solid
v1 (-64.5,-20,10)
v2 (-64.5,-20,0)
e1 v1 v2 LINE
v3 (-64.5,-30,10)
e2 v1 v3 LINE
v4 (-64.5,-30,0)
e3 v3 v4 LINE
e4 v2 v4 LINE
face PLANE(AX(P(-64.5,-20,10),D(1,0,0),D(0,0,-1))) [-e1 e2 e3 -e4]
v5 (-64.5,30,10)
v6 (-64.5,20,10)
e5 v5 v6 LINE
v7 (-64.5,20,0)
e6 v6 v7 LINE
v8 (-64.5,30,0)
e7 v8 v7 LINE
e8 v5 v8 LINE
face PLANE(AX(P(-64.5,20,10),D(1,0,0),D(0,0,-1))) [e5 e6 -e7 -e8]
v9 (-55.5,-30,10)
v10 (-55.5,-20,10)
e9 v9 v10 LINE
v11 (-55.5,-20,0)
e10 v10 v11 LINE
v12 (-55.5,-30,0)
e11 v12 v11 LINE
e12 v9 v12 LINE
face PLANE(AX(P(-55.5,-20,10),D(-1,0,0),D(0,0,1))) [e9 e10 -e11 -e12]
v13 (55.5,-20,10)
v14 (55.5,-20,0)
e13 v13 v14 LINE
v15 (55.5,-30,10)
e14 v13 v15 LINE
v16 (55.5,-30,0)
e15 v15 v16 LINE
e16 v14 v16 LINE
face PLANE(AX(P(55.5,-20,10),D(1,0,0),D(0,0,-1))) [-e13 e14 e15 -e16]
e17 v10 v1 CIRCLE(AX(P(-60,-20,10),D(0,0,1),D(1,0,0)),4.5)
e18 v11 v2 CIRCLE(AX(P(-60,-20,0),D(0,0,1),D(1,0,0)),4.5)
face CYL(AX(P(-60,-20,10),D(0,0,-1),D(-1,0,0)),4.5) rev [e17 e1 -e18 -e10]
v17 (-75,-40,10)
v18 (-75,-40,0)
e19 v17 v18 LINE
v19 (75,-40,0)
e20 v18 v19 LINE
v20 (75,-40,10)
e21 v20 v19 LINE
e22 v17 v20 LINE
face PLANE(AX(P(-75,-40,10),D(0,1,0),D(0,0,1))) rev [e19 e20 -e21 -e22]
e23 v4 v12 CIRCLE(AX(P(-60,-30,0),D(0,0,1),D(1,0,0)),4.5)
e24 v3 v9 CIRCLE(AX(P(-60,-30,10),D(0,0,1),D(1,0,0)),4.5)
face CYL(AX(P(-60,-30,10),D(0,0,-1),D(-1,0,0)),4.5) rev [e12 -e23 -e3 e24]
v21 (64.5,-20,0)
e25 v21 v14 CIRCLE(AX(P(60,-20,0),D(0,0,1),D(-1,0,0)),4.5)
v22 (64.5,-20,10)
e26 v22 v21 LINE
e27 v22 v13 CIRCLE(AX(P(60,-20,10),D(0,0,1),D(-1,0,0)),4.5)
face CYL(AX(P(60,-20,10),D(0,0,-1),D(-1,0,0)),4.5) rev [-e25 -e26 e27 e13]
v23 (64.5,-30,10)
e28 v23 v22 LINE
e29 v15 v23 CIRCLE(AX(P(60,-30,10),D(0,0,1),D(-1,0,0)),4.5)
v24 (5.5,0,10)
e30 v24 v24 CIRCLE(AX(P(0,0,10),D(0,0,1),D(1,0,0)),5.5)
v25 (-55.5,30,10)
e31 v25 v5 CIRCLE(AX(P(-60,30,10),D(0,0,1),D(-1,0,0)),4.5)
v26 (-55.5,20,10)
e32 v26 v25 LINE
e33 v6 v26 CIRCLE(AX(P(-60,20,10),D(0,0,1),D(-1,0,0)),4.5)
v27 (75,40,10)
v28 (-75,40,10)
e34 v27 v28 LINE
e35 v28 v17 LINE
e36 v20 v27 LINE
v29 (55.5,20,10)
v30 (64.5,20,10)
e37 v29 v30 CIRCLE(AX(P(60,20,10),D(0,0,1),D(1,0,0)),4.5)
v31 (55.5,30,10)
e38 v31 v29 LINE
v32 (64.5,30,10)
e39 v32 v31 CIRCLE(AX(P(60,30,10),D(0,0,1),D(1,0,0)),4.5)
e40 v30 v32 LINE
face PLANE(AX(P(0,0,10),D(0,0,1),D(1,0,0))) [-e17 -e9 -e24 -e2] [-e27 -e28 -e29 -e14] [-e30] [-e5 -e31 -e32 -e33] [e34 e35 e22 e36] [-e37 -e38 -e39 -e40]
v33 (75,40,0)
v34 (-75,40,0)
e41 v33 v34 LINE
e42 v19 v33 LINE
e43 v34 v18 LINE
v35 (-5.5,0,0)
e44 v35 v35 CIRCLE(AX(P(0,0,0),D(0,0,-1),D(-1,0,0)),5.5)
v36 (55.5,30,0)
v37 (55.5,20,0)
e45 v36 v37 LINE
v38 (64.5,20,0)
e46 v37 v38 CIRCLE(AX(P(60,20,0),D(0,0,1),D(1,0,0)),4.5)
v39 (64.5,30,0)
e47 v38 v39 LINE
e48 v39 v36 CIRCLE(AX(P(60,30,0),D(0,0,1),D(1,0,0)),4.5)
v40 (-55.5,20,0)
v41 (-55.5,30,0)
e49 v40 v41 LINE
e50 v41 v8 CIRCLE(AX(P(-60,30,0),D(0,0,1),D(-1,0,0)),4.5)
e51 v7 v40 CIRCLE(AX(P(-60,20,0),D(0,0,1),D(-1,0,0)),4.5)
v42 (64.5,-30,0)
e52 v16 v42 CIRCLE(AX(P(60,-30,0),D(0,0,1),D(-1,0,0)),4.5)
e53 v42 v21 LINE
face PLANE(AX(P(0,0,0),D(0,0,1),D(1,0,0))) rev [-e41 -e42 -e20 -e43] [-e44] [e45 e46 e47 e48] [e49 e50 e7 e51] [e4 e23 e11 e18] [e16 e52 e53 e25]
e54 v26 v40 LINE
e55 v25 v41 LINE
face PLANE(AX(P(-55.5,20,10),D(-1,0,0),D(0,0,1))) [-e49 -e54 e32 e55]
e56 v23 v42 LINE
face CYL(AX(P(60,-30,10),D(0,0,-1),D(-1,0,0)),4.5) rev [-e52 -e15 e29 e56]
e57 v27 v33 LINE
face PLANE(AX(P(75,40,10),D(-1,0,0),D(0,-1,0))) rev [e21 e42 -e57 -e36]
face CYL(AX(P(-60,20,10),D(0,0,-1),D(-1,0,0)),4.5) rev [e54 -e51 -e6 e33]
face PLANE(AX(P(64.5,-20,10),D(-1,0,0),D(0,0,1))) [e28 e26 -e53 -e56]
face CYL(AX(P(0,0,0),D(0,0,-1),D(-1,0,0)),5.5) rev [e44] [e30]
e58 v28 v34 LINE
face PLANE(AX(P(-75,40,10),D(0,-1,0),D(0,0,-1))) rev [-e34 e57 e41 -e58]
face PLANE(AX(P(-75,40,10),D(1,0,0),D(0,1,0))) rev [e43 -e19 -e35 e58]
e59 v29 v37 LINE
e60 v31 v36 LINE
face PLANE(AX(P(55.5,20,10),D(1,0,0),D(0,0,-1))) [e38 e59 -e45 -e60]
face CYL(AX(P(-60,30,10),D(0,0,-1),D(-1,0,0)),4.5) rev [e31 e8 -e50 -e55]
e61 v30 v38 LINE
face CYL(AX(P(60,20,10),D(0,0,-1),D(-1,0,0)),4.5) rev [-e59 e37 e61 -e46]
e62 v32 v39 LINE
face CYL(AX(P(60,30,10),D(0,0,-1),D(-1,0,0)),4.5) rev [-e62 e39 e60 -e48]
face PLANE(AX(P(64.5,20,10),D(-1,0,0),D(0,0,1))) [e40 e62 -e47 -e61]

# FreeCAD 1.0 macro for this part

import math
import FreeCAD as App
import Part
import Sketcher
Q = App.Units.Quantity


def add_polygon(sketch, points):
    """Adds a closed chain of lines whose ends are joined by coincident constraints."""
    first, n = sketch.GeometryCount, len(points)
    for a, b in zip(points, points[1:] + points[:1]):
        sketch.addGeometry(Part.LineSegment(App.Vector(*a, 0), App.Vector(*b, 0)), False)
    for i in range(n):
        sketch.addConstraint(Sketcher.Constraint("Coincident", first + i, 2, first + (i + 1) % n, 1))

doc = App.newDocument("Part")
body = doc.addObject("PartDesign::Body", "Body")

# Sketch on XY plane
sketch1 = body.newObject("Sketcher::SketchObject", "Sketch")
sketch1.AttachmentSupport = (doc.getObject("XY_Plane"), [""])
sketch1.MapMode = "FlatFace"
add_polygon(sketch1, [(-75, 40), (-75, -40), (75, -40), (75, 40)])  # lines 0-3
sketch1.addGeometry(Part.ArcOfCircle(Part.Circle(App.Vector(-60, -20, 0), App.Vector(0, 0, 1), 4.5), math.radians(0), math.radians(180)), False)  # 4
sketch1.addGeometry(Part.LineSegment(App.Vector(-55.5, -20, 0), App.Vector(-55.5, -30, 0)), False)  # 5
sketch1.addGeometry(Part.ArcOfCircle(Part.Circle(App.Vector(-60, -30, 0), App.Vector(0, 0, 1), 4.5), math.radians(180), math.radians(360)), False)  # 6
sketch1.addGeometry(Part.LineSegment(App.Vector(-64.5, -30, 0), App.Vector(-64.5, -20, 0)), False)  # 7
sketch1.addGeometry(Part.LineSegment(App.Vector(55.5, -30, 0), App.Vector(55.5, -20, 0)), False)  # 8
sketch1.addGeometry(Part.ArcOfCircle(Part.Circle(App.Vector(60, -20, 0), App.Vector(0, 0, 1), 4.5), math.radians(0), math.radians(180)), False)  # 9
sketch1.addGeometry(Part.LineSegment(App.Vector(64.5, -20, 0), App.Vector(64.5, -30, 0)), False)  # 10
sketch1.addGeometry(Part.ArcOfCircle(Part.Circle(App.Vector(60, -30, 0), App.Vector(0, 0, 1), 4.5), math.radians(180), math.radians(360)), False)  # 11
sketch1.addGeometry(Part.LineSegment(App.Vector(-55.5, 30, 0), App.Vector(-55.5, 20, 0)), False)  # 12
sketch1.addGeometry(Part.ArcOfCircle(Part.Circle(App.Vector(-60, 20, 0), App.Vector(0, 0, 1), 4.5), math.radians(180), math.radians(360)), False)  # 13
sketch1.addGeometry(Part.LineSegment(App.Vector(-64.5, 20, 0), App.Vector(-64.5, 30, 0)), False)  # 14
sketch1.addGeometry(Part.ArcOfCircle(Part.Circle(App.Vector(-60, 30, 0), App.Vector(0, 0, 1), 4.5), math.radians(0), math.radians(180)), False)  # 15
sketch1.addGeometry(Part.ArcOfCircle(Part.Circle(App.Vector(60, 20, 0), App.Vector(0, 0, 1), 4.5), math.radians(180), math.radians(360)), False)  # 16
sketch1.addGeometry(Part.LineSegment(App.Vector(55.5, 20, 0), App.Vector(55.5, 30, 0)), False)  # 17
sketch1.addGeometry(Part.ArcOfCircle(Part.Circle(App.Vector(60, 30, 0), App.Vector(0, 0, 1), 4.5), math.radians(0), math.radians(180)), False)  # 18
sketch1.addGeometry(Part.LineSegment(App.Vector(64.5, 30, 0), App.Vector(64.5, 20, 0)), False)  # 19
sketch1.addConstraint(Sketcher.Constraint("Tangent", 4, 1, 5, 1))
sketch1.addConstraint(Sketcher.Constraint("Tangent", 5, 2, 6, 2))
sketch1.addConstraint(Sketcher.Constraint("Tangent", 6, 1, 7, 1))
sketch1.addConstraint(Sketcher.Constraint("Tangent", 7, 2, 4, 2))
sketch1.addConstraint(Sketcher.Constraint("Tangent", 8, 2, 9, 2))
sketch1.addConstraint(Sketcher.Constraint("Tangent", 9, 1, 10, 1))
sketch1.addConstraint(Sketcher.Constraint("Tangent", 10, 2, 11, 2))
sketch1.addConstraint(Sketcher.Constraint("Tangent", 11, 1, 8, 1))
sketch1.addConstraint(Sketcher.Constraint("Tangent", 12, 2, 13, 2))
sketch1.addConstraint(Sketcher.Constraint("Tangent", 13, 1, 14, 1))
sketch1.addConstraint(Sketcher.Constraint("Tangent", 14, 2, 15, 2))
sketch1.addConstraint(Sketcher.Constraint("Tangent", 15, 1, 12, 1))
sketch1.addConstraint(Sketcher.Constraint("Tangent", 16, 1, 17, 1))
sketch1.addConstraint(Sketcher.Constraint("Tangent", 17, 2, 18, 2))
sketch1.addConstraint(Sketcher.Constraint("Tangent", 18, 1, 19, 1))
sketch1.addConstraint(Sketcher.Constraint("Tangent", 19, 2, 16, 2))
sketch1.addConstraint(Sketcher.Constraint("Vertical", 0))
sketch1.addConstraint(Sketcher.Constraint("Horizontal", 1))
sketch1.addConstraint(Sketcher.Constraint("Vertical", 2))
sketch1.addConstraint(Sketcher.Constraint("Horizontal", 3))
sketch1.addConstraint(Sketcher.Constraint("Vertical", 5))
sketch1.addConstraint(Sketcher.Constraint("Vertical", 7))
sketch1.addConstraint(Sketcher.Constraint("Vertical", 8))
sketch1.addConstraint(Sketcher.Constraint("Vertical", 10))
sketch1.addConstraint(Sketcher.Constraint("Vertical", 12))
sketch1.addConstraint(Sketcher.Constraint("Vertical", 14))
sketch1.addConstraint(Sketcher.Constraint("Vertical", 17))
sketch1.addConstraint(Sketcher.Constraint("Vertical", 19))
sketch1.addConstraint(Sketcher.Constraint("Equal", 6, 9))
sketch1.addConstraint(Sketcher.Constraint("Equal", 11, 13))
sketch1.addConstraint(Sketcher.Constraint("Equal", 15, 16))
sketch1.addConstraint(Sketcher.Constraint("Symmetric", 9, 3, 13, 3, -1, 1))
sketch1.addConstraint(Sketcher.Constraint("Symmetric", 4, 3, 16, 3, -1, 1))
sketch1.addConstraint(Sketcher.Constraint("Symmetric", 0, 2, 2, 2, -1, 1))
sketch1.addConstraint(Sketcher.Constraint("Symmetric", 4, 3, 9, 3, -2))
sketch1.addConstraint(Sketcher.Constraint("Horizontal", 6, 3, 11, 3))
sketch1.addConstraint(Sketcher.Constraint("Horizontal", 15, 3, 18, 3))
sketch1.addConstraint(Sketcher.Constraint("Equal", 10, 12))
sketch1.addConstraint(Sketcher.Constraint("Radius", 4, Q("4.5 mm")))
sketch1.addConstraint(Sketcher.Constraint("DistanceX", 1, 1, 1, 2, Q("150 mm")))
sketch1.addConstraint(Sketcher.Constraint("DistanceY", 0, 2, 0, 1, Q("80 mm")))
sketch1.addConstraint(Sketcher.Constraint("DistanceY", 5, 2, 5, 1, Q("10 mm")))
sketch1.addConstraint(Sketcher.Constraint("DistanceX", 4, 3, -1, 1, Q("60 mm")))
sketch1.addConstraint(Sketcher.Constraint("DistanceY", 4, 3, -1, 1, Q("20 mm")))
pad1 = body.newObject("PartDesign::Pad", "Pad")
pad1.Profile = sketch1
pad1.Length = 10

# Sketch on XY plane
sketch2 = body.newObject("Sketcher::SketchObject", "Sketch001")
sketch2.AttachmentSupport = (doc.getObject("XY_Plane"), [""])
sketch2.MapMode = "FlatFace"
sketch2.addGeometry(Part.Circle(App.Vector(0, 0, 0), App.Vector(0, 0, 1), 6), False)
sketch2.addConstraint(Sketcher.Constraint("Coincident", 0, 3, -1, 1))
sketch2.addConstraint(Sketcher.Constraint("Diameter", 0, Q("11 mm")))
doc.recompute()
hole = body.newObject("PartDesign::Hole", "Hole")
hole.Profile = sketch2
hole.ThreadType = "None"
hole.Diameter = 11
hole.DepthType = "Dimension"
hole.Depth = 24.5
hole.DrillPoint = "Angled"
hole.DrillPointAngle = 118
hole.Reversed = True

doc.recompute()
